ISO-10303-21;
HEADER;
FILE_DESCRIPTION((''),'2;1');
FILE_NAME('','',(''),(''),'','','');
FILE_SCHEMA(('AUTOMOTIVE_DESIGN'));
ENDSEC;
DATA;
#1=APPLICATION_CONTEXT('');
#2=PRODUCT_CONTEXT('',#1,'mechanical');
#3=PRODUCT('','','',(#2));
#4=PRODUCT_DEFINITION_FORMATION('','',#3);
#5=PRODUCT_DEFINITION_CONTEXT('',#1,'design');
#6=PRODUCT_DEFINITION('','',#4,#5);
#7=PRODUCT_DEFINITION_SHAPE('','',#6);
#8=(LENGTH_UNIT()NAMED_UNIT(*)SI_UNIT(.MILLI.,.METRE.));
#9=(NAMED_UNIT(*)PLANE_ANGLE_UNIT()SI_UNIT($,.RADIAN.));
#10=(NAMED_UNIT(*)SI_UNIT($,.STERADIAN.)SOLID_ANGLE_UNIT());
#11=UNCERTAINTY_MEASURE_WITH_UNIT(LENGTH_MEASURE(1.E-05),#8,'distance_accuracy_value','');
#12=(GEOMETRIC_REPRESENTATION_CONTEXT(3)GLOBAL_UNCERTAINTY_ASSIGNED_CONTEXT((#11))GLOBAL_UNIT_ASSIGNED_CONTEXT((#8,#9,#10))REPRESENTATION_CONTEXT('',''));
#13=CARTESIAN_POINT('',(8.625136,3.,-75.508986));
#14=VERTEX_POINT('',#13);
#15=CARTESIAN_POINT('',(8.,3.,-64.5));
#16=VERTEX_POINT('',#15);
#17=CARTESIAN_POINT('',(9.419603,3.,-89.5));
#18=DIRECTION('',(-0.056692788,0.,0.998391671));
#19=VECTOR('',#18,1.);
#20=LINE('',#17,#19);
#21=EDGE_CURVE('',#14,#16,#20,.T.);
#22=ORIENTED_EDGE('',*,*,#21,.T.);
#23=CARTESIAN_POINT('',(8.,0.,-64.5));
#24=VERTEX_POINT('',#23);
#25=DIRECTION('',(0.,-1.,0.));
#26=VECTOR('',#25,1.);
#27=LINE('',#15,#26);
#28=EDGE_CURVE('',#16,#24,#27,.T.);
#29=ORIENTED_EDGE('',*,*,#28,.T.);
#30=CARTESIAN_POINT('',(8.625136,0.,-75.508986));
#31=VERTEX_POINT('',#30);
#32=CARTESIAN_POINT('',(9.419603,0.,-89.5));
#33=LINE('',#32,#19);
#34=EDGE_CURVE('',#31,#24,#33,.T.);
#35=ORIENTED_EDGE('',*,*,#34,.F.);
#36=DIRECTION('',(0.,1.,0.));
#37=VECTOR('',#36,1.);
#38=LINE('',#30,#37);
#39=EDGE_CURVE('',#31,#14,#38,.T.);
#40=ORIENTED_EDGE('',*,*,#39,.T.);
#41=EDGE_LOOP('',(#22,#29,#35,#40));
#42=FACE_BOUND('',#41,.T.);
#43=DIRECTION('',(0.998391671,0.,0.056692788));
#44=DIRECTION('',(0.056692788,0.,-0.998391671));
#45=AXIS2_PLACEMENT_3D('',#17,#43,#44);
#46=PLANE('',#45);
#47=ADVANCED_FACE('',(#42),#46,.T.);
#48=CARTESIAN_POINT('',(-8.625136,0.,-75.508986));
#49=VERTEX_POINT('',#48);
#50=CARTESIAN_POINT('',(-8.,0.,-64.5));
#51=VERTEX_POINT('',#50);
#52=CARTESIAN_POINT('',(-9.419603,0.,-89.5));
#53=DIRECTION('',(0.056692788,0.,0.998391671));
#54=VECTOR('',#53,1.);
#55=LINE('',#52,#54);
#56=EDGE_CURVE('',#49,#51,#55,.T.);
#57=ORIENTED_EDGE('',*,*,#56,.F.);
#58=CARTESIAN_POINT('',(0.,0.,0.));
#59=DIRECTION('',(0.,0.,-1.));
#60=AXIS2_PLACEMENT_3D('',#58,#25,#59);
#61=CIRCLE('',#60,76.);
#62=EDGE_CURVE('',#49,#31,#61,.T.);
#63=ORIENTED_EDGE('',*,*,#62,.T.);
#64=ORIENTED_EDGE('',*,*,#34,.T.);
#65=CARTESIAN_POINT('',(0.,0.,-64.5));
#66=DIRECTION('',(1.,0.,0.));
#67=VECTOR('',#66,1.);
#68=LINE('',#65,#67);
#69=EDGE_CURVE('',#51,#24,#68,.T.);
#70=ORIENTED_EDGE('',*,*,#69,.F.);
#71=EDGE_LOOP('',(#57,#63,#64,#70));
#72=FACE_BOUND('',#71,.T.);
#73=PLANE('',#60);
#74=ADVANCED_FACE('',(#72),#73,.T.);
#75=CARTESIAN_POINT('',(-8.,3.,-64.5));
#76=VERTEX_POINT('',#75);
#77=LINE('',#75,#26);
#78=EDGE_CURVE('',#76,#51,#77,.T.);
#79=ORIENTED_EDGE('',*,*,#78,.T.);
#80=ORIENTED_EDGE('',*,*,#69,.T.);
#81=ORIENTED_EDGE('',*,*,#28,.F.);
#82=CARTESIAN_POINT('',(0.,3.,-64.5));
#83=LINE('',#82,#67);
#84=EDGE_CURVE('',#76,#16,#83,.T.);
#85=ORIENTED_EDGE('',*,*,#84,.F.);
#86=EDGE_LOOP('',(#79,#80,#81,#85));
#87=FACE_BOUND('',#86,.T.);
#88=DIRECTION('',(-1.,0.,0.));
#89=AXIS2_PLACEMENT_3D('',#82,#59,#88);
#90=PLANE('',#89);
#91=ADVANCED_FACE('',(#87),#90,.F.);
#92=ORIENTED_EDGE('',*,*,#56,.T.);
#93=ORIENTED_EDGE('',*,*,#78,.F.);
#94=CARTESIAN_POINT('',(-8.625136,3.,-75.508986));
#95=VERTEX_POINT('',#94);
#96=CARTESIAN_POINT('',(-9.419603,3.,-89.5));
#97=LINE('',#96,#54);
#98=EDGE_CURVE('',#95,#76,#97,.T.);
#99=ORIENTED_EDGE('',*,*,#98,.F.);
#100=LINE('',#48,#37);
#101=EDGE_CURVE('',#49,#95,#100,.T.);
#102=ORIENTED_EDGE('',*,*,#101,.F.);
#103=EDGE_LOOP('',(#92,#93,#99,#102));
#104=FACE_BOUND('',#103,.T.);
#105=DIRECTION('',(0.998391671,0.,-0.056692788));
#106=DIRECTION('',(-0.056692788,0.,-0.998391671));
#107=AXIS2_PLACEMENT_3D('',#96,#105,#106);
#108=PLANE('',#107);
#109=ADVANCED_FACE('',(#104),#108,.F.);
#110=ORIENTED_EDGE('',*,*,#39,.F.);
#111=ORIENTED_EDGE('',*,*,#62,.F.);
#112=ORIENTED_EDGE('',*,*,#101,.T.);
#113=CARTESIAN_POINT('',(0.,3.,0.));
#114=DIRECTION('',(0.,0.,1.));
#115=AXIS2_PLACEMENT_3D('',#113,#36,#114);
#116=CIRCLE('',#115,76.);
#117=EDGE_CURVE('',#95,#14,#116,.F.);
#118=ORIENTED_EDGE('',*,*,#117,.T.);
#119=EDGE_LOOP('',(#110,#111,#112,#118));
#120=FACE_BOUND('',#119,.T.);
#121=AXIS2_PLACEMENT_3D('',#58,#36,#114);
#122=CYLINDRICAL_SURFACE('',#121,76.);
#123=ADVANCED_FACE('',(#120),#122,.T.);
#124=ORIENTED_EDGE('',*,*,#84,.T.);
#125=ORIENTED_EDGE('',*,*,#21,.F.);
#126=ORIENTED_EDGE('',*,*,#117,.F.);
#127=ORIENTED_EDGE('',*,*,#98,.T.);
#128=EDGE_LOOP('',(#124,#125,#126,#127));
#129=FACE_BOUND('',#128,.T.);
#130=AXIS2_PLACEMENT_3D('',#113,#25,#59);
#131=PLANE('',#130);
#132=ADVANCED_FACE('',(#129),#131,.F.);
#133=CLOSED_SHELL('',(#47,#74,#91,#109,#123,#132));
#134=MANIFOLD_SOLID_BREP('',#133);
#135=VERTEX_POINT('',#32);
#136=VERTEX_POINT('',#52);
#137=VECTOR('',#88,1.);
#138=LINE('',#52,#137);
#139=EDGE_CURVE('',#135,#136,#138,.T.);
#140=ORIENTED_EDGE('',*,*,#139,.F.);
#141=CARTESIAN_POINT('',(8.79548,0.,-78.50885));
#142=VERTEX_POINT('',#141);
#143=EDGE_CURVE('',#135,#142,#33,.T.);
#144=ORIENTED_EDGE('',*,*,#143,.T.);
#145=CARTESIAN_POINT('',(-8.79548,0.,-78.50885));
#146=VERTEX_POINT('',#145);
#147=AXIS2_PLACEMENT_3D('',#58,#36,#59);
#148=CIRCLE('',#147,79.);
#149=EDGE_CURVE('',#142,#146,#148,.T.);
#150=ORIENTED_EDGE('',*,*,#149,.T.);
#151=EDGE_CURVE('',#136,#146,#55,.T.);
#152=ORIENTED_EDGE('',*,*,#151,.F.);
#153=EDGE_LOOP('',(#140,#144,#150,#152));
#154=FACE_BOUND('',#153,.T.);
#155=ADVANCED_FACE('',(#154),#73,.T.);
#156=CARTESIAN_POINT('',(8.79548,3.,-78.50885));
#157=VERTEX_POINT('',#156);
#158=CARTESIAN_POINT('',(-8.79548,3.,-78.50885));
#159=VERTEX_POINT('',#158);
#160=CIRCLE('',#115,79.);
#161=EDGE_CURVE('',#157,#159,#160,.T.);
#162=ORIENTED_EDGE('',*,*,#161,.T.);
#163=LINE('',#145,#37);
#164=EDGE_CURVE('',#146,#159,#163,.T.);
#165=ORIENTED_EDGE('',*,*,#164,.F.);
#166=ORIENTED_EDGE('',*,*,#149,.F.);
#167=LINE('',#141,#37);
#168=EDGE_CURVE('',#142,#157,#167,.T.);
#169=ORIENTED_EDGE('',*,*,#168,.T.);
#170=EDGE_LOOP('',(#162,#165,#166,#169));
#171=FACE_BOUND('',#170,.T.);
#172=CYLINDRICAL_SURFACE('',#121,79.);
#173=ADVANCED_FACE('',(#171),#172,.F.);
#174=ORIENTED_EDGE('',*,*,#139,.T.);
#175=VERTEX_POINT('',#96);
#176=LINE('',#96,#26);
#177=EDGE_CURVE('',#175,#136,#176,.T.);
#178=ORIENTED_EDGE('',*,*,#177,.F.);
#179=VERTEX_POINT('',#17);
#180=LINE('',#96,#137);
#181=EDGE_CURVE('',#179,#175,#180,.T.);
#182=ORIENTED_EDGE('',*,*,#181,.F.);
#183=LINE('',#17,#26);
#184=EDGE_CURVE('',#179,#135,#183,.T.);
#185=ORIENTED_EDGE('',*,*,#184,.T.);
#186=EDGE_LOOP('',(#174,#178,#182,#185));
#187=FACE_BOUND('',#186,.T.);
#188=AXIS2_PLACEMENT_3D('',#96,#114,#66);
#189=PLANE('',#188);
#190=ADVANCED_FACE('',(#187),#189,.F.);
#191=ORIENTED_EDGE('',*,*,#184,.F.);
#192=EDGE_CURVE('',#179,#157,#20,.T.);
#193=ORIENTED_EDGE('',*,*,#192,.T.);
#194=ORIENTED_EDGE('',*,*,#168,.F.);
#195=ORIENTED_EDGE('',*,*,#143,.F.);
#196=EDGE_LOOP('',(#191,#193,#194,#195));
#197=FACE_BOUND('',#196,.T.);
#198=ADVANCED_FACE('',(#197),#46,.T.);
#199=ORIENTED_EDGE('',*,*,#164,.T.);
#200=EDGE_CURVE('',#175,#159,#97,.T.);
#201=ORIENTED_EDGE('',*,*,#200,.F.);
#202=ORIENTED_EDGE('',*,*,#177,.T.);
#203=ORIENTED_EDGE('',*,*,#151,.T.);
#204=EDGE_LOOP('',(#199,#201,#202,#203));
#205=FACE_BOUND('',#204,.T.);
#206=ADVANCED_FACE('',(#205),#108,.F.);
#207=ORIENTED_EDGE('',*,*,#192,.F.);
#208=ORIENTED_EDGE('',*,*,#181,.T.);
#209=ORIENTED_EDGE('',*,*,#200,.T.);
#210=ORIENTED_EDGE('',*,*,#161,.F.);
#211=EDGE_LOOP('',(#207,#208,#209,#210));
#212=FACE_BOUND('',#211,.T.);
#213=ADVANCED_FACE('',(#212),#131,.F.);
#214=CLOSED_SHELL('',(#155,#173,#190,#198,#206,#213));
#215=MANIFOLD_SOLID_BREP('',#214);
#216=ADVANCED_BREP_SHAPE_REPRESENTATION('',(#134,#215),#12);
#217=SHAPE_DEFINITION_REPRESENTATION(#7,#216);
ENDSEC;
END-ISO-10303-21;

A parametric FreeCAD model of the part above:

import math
import FreeCAD as App
import Part
import Sketcher
Q = App.Units.Quantity

doc = App.newDocument("Part")
body = doc.addObject("PartDesign::Body", "Body")
body.AllowCompound = True

# Sketch on XZ plane
sketch1 = body.newObject("Sketcher::SketchObject", "Sketch")
sketch1.AttachmentSupport = (doc.getObject("XZ_Plane"), [""])
sketch1.MapMode = "FlatFace"
sketch1.addGeometry(Part.LineSegment(App.Vector(-9.419603, -89.5, 0), App.Vector(-8, -64.5, 0)), False)
sketch1.addGeometry(Part.LineSegment(App.Vector(-8, -64.5, 0), App.Vector(0, -64.5, 0)), False)
sketch1.addGeometry(Part.LineSegment(App.Vector(0, -64.5, 0), App.Vector(0, -89.5, 0)), False)
sketch1.addGeometry(Part.LineSegment(App.Vector(0, -89.5, 0), App.Vector(-9.419603, -89.5, 0)), False)
sketch1.addConstraint(Sketcher.Constraint("Coincident", 0, 2, 1, 1))
sketch1.addConstraint(Sketcher.Constraint("Coincident", 1, 2, 2, 1))
sketch1.addConstraint(Sketcher.Constraint("Coincident", 2, 2, 3, 1))
sketch1.addConstraint(Sketcher.Constraint("Coincident", 3, 2, 0, 1))
sketch1.addConstraint(Sketcher.Constraint("Horizontal", 1))
sketch1.addConstraint(Sketcher.Constraint("Vertical", 2))
sketch1.addConstraint(Sketcher.Constraint("Horizontal", 3))
sketch1.addConstraint(Sketcher.Constraint("PointOnObject", 1, 2, -2))
sketch1.addConstraint(Sketcher.Constraint("DistanceX", 1, 1, 1, 2, Q("8 mm")))
sketch1.addConstraint(Sketcher.Constraint("DistanceY", 2, 2, 2, 1, Q("25 mm")))
sketch1.addConstraint(Sketcher.Constraint("DistanceY", 0, 2, -1, 1, Q("64.5 mm")))
sketch1.addConstraint(Sketcher.Constraint("Angle", 0, Q("86.75 deg")))
pad1 = body.newObject("PartDesign::Pad", "Pad")
pad1.Profile = sketch1
pad1.Length = 3
pad1.Reversed = True
doc.recompute()

mirrored = body.newObject("PartDesign::Mirrored", "Mirrored")
mirrored.Originals = [pad1]
mirrored.MirrorPlane = (doc.getObject("YZ_Plane"), [""])
body.Tip = mirrored

# Sketch on XZ plane
sketch2 = body.newObject("Sketcher::SketchObject", "Sketch001")
sketch2.AttachmentSupport = (doc.getObject("XZ_Plane"), [""])
sketch2.MapMode = "FlatFace"
sketch2.AttachmentOffset = App.Placement(App.Vector(0, 0, -3), App.Rotation())
sketch2.addGeometry(Part.LineSegment(App.Vector(-8.79548, -78.50885, 0), App.Vector(-8.625136, -75.508986, 0)), False)
sketch2.addGeometry(Part.ArcOfCircle(Part.Circle(App.Vector(0, 0, 0), App.Vector(0, 0, 1), 76), math.radians(-96.516459), math.radians(-83.483541)), False)
sketch2.addGeometry(Part.LineSegment(App.Vector(8.625136, -75.508986, 0), App.Vector(8.79548, -78.50885, 0)), False)
sketch2.addGeometry(Part.ArcOfCircle(Part.Circle(App.Vector(0, 0, 0), App.Vector(0, 0, 1), 79), math.radians(-96.392289), math.radians(-83.607711)), False)
sketch2.addConstraint(Sketcher.Constraint("Coincident", 0, 2, 1, 1))
sketch2.addConstraint(Sketcher.Constraint("Coincident", 1, 2, 2, 1))
sketch2.addConstraint(Sketcher.Constraint("Coincident", 2, 2, 3, 2))
sketch2.addConstraint(Sketcher.Constraint("Coincident", 3, 1, 0, 1))
sketch2.addConstraint(Sketcher.Constraint("Coincident", 1, 3, -1, 1))
sketch2.addConstraint(Sketcher.Constraint("Coincident", 3, 3, -1, 1))
sketch2.addConstraint(Sketcher.Constraint("Horizontal", 0, 2, 1, 2))
sketch2.addConstraint(Sketcher.Constraint("Horizontal", 2, 2, 3, 1))
sketch2.addConstraint(Sketcher.Constraint("Radius", 1, Q("76 mm")))
sketch2.addConstraint(Sketcher.Constraint("Radius", 3, Q("79 mm")))
sketch2.addConstraint(Sketcher.Constraint("Angle", 0, Q("86.75 deg")))
sketch2.addConstraint(Sketcher.Constraint("DistanceX", -1, 1, 2, 2, Q("8.79548 mm")))
pocket1 = body.newObject("PartDesign::Pocket", "Pocket")
pocket1.Profile = sketch2
pocket1.Type = "ThroughAll"
pocket1.Midplane = True

doc.recompute()
